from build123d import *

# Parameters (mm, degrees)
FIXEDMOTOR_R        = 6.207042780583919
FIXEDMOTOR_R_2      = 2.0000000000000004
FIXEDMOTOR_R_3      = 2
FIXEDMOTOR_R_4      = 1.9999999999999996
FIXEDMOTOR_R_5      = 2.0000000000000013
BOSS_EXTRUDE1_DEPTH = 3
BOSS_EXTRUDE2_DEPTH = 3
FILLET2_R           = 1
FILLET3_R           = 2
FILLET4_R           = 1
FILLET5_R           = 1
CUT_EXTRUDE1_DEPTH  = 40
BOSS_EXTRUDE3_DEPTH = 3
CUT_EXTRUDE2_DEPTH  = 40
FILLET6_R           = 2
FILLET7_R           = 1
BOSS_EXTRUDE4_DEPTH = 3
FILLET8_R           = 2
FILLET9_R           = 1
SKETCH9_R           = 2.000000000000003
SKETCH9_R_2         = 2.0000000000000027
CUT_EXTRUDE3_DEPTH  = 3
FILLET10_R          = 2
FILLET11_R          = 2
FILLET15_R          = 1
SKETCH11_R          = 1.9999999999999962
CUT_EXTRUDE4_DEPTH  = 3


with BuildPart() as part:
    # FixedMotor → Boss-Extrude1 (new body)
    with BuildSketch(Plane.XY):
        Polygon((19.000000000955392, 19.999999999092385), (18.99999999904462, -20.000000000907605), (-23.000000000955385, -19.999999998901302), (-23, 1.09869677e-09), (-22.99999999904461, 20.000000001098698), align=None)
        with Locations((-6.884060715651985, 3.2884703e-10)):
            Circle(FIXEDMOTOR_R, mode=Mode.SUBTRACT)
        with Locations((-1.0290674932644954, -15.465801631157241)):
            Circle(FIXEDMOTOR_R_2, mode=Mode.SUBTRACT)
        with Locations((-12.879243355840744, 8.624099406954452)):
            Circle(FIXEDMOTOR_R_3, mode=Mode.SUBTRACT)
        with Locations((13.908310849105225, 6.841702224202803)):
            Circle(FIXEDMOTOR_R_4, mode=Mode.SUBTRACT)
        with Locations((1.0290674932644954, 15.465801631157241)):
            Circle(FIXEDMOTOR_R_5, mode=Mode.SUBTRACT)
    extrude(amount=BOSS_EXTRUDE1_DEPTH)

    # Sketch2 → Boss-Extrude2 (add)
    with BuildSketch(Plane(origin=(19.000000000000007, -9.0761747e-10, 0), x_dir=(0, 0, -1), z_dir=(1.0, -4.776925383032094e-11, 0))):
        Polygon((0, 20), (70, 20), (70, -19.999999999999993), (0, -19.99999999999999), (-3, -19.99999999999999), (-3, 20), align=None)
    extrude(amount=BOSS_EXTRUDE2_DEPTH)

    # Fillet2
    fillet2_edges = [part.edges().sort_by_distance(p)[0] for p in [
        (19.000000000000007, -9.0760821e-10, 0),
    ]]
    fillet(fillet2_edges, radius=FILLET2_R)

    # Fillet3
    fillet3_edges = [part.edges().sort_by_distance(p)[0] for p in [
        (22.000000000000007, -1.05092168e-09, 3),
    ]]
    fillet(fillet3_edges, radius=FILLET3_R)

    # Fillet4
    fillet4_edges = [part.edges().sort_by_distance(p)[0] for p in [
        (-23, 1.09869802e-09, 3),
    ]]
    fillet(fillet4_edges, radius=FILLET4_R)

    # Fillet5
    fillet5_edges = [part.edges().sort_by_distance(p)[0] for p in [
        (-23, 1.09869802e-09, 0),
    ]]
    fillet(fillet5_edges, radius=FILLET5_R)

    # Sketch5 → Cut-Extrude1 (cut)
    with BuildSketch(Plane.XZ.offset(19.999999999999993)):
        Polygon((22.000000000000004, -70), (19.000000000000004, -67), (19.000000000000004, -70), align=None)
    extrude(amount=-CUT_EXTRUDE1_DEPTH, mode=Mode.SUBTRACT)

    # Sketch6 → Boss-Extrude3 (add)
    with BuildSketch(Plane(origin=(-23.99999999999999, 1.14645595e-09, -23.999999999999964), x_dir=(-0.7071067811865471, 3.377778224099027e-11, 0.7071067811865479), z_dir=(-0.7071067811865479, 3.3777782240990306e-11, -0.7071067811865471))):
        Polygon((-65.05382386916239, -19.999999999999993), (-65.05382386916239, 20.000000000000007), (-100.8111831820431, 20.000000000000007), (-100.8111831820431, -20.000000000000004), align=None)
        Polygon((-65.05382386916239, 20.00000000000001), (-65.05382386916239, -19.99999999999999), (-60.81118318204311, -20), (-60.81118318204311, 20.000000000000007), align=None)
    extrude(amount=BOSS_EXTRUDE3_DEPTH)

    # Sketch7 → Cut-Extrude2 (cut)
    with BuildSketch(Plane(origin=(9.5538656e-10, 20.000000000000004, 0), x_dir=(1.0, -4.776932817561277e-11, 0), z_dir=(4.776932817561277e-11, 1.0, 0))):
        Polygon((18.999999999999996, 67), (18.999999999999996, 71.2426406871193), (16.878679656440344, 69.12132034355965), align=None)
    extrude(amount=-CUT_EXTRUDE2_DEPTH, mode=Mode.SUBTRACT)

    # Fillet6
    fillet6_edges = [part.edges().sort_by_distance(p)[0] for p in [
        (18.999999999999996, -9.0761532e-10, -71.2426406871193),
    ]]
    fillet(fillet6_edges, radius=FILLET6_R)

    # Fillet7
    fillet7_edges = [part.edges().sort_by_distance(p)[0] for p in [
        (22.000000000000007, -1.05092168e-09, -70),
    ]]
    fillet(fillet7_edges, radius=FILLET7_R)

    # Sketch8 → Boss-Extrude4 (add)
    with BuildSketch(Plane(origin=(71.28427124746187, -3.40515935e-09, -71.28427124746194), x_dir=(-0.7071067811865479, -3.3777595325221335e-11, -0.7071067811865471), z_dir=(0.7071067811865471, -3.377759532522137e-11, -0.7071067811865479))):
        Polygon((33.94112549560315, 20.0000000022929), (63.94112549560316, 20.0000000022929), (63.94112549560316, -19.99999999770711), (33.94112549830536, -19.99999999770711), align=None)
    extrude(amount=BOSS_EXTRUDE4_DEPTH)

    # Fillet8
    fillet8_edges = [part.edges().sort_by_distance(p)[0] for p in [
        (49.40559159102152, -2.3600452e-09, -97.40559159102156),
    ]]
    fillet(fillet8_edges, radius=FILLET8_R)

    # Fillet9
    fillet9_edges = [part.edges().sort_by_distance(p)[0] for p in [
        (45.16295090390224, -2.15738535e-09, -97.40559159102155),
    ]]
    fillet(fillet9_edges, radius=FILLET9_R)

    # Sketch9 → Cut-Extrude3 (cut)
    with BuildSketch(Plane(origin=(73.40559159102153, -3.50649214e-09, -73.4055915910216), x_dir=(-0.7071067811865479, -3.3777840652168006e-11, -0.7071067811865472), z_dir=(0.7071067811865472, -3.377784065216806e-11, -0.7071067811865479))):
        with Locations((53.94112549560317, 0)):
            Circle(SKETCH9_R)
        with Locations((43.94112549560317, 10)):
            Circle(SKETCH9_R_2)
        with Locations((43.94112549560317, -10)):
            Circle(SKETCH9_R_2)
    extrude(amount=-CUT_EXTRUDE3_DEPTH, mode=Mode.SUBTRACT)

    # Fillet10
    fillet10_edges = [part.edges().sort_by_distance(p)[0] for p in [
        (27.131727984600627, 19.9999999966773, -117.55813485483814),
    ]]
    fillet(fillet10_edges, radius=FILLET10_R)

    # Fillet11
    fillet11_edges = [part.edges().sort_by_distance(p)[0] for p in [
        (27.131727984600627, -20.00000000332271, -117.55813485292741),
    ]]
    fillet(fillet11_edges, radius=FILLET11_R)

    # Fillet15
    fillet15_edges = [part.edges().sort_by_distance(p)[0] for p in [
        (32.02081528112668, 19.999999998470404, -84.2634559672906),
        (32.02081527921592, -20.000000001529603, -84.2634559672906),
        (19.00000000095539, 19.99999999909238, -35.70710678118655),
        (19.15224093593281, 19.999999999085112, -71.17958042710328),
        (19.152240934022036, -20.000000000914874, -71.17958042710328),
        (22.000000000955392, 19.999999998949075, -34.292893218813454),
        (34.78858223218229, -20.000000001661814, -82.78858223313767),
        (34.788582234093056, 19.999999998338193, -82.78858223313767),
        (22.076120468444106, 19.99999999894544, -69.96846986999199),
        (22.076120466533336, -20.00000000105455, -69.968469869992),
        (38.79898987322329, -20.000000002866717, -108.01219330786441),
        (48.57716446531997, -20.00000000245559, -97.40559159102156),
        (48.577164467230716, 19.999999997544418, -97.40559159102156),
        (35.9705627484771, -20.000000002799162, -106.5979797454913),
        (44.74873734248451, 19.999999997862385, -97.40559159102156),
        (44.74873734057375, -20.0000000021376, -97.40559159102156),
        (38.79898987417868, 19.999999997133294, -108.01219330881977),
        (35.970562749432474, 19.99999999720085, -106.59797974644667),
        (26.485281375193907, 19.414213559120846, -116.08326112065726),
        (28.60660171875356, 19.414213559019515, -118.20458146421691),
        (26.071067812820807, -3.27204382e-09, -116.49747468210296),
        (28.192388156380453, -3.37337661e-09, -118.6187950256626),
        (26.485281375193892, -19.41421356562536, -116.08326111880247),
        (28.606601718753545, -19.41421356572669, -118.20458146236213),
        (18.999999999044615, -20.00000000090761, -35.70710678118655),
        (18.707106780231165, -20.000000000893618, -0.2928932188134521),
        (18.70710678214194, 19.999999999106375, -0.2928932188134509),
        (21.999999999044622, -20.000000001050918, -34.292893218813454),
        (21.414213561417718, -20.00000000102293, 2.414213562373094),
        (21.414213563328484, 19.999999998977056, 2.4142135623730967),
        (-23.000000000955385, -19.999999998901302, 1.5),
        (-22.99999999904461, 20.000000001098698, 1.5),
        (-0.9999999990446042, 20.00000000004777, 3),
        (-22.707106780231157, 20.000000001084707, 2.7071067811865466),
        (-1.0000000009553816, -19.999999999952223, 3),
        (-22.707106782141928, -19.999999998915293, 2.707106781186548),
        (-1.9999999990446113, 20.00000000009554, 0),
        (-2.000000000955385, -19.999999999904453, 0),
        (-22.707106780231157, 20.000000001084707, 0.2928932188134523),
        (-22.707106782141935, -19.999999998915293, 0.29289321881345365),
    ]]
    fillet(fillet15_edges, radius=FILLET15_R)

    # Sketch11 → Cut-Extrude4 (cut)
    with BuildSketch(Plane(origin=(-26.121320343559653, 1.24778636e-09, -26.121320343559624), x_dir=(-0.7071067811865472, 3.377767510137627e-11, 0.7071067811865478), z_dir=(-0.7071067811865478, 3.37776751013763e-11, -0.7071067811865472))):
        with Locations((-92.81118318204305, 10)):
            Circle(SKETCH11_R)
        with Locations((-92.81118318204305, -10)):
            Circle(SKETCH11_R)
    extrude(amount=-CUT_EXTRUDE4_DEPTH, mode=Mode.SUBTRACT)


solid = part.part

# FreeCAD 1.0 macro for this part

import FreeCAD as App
import Part
import Sketcher

V = App.Vector
Q = App.Units.Quantity


def edges_at(feature, points):
    """Names of the edges that pass closest to the given points."""
    edges = feature.Shape.Edges
    near = lambda p: min(range(len(edges)), key=lambda i: edges[i].distToShape(Part.Vertex(*p))[0])
    return sorted({f"Edge{near(p) + 1}" for p in points})

doc = App.newDocument("Part")
body = doc.addObject("PartDesign::Body", "Body")

sketch1 = body.newObject("Sketcher::SketchObject", "Sketch")
sketch1.AttachmentSupport = (doc.getObject("XY_Plane"), [""])
sketch1.MapMode = "FlatFace"
sketch1.addGeometry([
    Part.LineSegment(V(19, -20, 0), V(19, 20, 0)),
    Part.LineSegment(V(19, 20, 0), V(-23, 20, 0)),
    Part.LineSegment(V(-23, 20, 0), V(-23, -20, 0)),
    Part.LineSegment(V(-23, -20, 0), V(19, -20, 0)),
    Part.Circle(V(-1, -15.5, 0), V(0, 0, 1), 2),
    Part.Circle(V(13.9, 6.8, 0), V(0, 0, 1), 2),
    Part.Circle(V(1, 15.5, 0), V(0, 0, 1), 2),
    Part.Circle(V(-6.9, 0, 0), V(0, 0, 1), 6.2),
    Part.Circle(V(-12.9, 8.6, 0), V(0, 0, 1), 2),
], False)
sketch1.addConstraint([
    Sketcher.Constraint("Coincident", 0, 2, 1, 1),
    Sketcher.Constraint("Coincident", 1, 2, 2, 1),
    Sketcher.Constraint("Coincident", 2, 2, 3, 1),
    Sketcher.Constraint("Coincident", 3, 2, 0, 1),
    Sketcher.Constraint("Vertical", 0),
    Sketcher.Constraint("Horizontal", 1),
    Sketcher.Constraint("Vertical", 2),
    Sketcher.Constraint("Horizontal", 3),
    Sketcher.Constraint("Equal", 4, 5),
    Sketcher.Constraint("Equal", 5, 6),
    Sketcher.Constraint("Equal", 6, 8),
    Sketcher.Constraint("Symmetric", 4, 3, 6, 3, -1, 1),
    Sketcher.Constraint("PointOnObject", 7, 3, -1),
    Sketcher.Constraint("Diameter", 4, Q("4 mm")),
    Sketcher.Constraint("DistanceX", 1, 2, 1, 1, Q("42 mm")),
    Sketcher.Constraint("DistanceY", 0, 1, 0, 2, Q("40 mm")),
    Sketcher.Constraint("DistanceX", -1, 1, 0, 2, Q("19 mm")),
    Sketcher.Constraint("DistanceY", -1, 1, 0, 2, Q("20 mm")),
    Sketcher.Constraint("Diameter", 7, Q("12.414086 mm")),
    Sketcher.Constraint("DistanceY", 4, 3, -1, 1, Q("15.465802 mm")),
    Sketcher.Constraint("DistanceY", -1, 1, 8, 3, Q("8.624099 mm")),
    Sketcher.Constraint("DistanceY", 5, 3, 6, 3, Q("8.624099 mm")),
    Sketcher.Constraint("DistanceX", -1, 1, 5, 3, Q("13.908311 mm")),
    Sketcher.Constraint("DistanceX", 7, 3, -1, 1, Q("6.884061 mm")),
    Sketcher.Constraint("DistanceX", 4, 3, 5, 3, Q("14.937378 mm")),
    Sketcher.Constraint("DistanceX", 8, 3, 6, 3, Q("13.908311 mm")),
])
pad1 = body.newObject("PartDesign::Pad", "Pad")
pad1.Profile = sketch1
pad1.Length = 3

sketch2 = body.newObject("Sketcher::SketchObject", "Sketch001")
sketch2.AttachmentSupport = (doc.getObject("YZ_Plane"), [""])
sketch2.MapMode = "FlatFace"
sketch2.AttachmentOffset = App.Placement(V(0, 0, 19), App.Rotation())
sketch2.addGeometry([
    Part.LineSegment(V(20, -70, 0), V(20, 3, 0)),
    Part.LineSegment(V(20, 3, 0), V(-20, 3, 0)),
    Part.LineSegment(V(-20, 3, 0), V(-20, -70, 0)),
    Part.LineSegment(V(-20, -70, 0), V(20, -70, 0)),
], False)
sketch2.addConstraint([
    Sketcher.Constraint("Coincident", 0, 2, 1, 1),
    Sketcher.Constraint("Coincident", 1, 2, 2, 1),
    Sketcher.Constraint("Coincident", 2, 2, 3, 1),
    Sketcher.Constraint("Coincident", 3, 2, 0, 1),
    Sketcher.Constraint("Vertical", 0),
    Sketcher.Constraint("Horizontal", 1),
    Sketcher.Constraint("Vertical", 2),
    Sketcher.Constraint("Horizontal", 3),
    Sketcher.Constraint("DistanceX", 1, 2, 1, 1, Q("40 mm")),
    Sketcher.Constraint("DistanceY", 0, 1, 0, 2, Q("73 mm")),
    Sketcher.Constraint("DistanceX", -1, 1, 0, 2, Q("20 mm")),
    Sketcher.Constraint("DistanceY", -1, 1, 0, 2, Q("3 mm")),
])
pad2 = body.newObject("PartDesign::Pad", "Pad001")
pad2.Profile = sketch2
pad2.Length = 3
doc.recompute()

fillet = body.newObject("PartDesign::Fillet", "Fillet")
fillet.Base = (pad2, edges_at(pad2, [(19, 0, 0)]))
fillet.Radius = 1
doc.recompute()

fillet2 = body.newObject("PartDesign::Fillet", "Fillet001")
fillet2.Base = (fillet, edges_at(fillet, [(22, 0, 3)]))
fillet2.Radius = 2
doc.recompute()

fillet3 = body.newObject("PartDesign::Fillet", "Fillet002")
fillet3.Base = (fillet2, edges_at(fillet2, [(-23, 0, 3)]))
fillet3.Radius = 1
doc.recompute()

fillet4 = body.newObject("PartDesign::Fillet", "Fillet003")
fillet4.Base = (fillet3, edges_at(fillet3, [(-23, 0, 0)]))
fillet4.Radius = 1

sketch3 = body.newObject("Sketcher::SketchObject", "Sketch002")
sketch3.AttachmentSupport = (doc.getObject("XZ_Plane"), [""])
sketch3.MapMode = "FlatFace"
sketch3.AttachmentOffset = App.Placement(V(0, 0, 20), App.Rotation())
sketch3.addGeometry([
    Part.LineSegment(V(22, -70, 0), V(19, -67, 0)),
    Part.LineSegment(V(19, -67, 0), V(19, -70, 0)),
    Part.LineSegment(V(19, -70, 0), V(22, -70, 0)),
], False)
sketch3.addConstraint([
    Sketcher.Constraint("Coincident", 0, 2, 1, 1),
    Sketcher.Constraint("Coincident", 1, 2, 2, 1),
    Sketcher.Constraint("Coincident", 2, 2, 0, 1),
    Sketcher.Constraint("Vertical", 1),
    Sketcher.Constraint("Horizontal", 2),
    Sketcher.Constraint("Equal", 2, 1),
    Sketcher.Constraint("DistanceX", 2, 1, 2, 2, Q("3 mm")),
    Sketcher.Constraint("DistanceX", -1, 1, 0, 2, Q("19 mm")),
    Sketcher.Constraint("DistanceY", 0, 2, -1, 1, Q("67 mm")),
])
pocket1 = body.newObject("PartDesign::Pocket", "Pocket")
pocket1.Profile = sketch3
pocket1.Length = 40

sketch4 = body.newObject("Sketcher::SketchObject", "Sketch003")
sketch4.Placement = App.Placement(V(-24, 0, -24), App.Rotation(V(-0.707106781, 0, 0.707106781), V(0, 0.999999999, 0), V(-0.707106781, 0, -0.707106781), "ZXY"))
sketch4.addGeometry([
    Part.LineSegment(V(-101, 20, 0), V(-101, -20, 0)),
    Part.LineSegment(V(-101, -20, 0), V(-61, -20, 0)),
    Part.LineSegment(V(-61, -20, 0), V(-61, 20, 0)),
    Part.LineSegment(V(-61, 20, 0), V(-101, 20, 0)),
], False)
sketch4.addConstraint([
    Sketcher.Constraint("Coincident", 0, 2, 1, 1),
    Sketcher.Constraint("Coincident", 1, 2, 2, 1),
    Sketcher.Constraint("Coincident", 2, 2, 3, 1),
    Sketcher.Constraint("Coincident", 3, 2, 0, 1),
    Sketcher.Constraint("Vertical", 0),
    Sketcher.Constraint("Horizontal", 1),
    Sketcher.Constraint("Vertical", 2),
    Sketcher.Constraint("Horizontal", 3),
    Sketcher.Constraint("Equal", 3, 0),
    Sketcher.Constraint("DistanceX", 1, 1, 1, 2, Q("40 mm")),
    Sketcher.Constraint("DistanceY", 0, 2, -1, 1, Q("20 mm")),
    Sketcher.Constraint("DistanceX", 0, 2, -1, 1, Q("100.811183 mm")),
])
pad3 = body.newObject("PartDesign::Pad", "Pad002")
pad3.Profile = sketch4
pad3.Length = 3

sketch5 = body.newObject("Sketcher::SketchObject", "Sketch004")
sketch5.AttachmentSupport = (doc.getObject("XZ_Plane"), [""])
sketch5.MapMode = "FlatFace"
sketch5.AttachmentOffset = App.Placement(V(0, 0, -20), App.Rotation())
sketch5.addGeometry([
    Part.LineSegment(V(19, -67, 0), V(19, -71.2, 0)),
    Part.LineSegment(V(19, -71.2, 0), V(16.9, -69.1, 0)),
    Part.LineSegment(V(16.9, -69.1, 0), V(19, -67, 0)),
], False)
sketch5.addConstraint([
    Sketcher.Constraint("Coincident", 0, 2, 1, 1),
    Sketcher.Constraint("Coincident", 1, 2, 2, 1),
    Sketcher.Constraint("Coincident", 2, 2, 0, 1),
    Sketcher.Constraint("Vertical", 0),
    Sketcher.Constraint("Perpendicular", 1, 2),
    Sketcher.Constraint("Equal", 1, 2),
    Sketcher.Constraint("Distance", 1, Q("3 mm")),
    Sketcher.Constraint("DistanceX", -1, 1, 0, 2, Q("19 mm")),
    Sketcher.Constraint("DistanceY", 2, 2, -1, 1, Q("67 mm")),
])
pocket2 = body.newObject("PartDesign::Pocket", "Pocket001")
pocket2.Profile = sketch5
pocket2.Length = 40
pocket2.Reversed = True
doc.recompute()

fillet5 = body.newObject("PartDesign::Fillet", "Fillet004")
fillet5.Base = (pocket2, edges_at(pocket2, [(19, 0, -71.243)]))
fillet5.Radius = 2
doc.recompute()

fillet6 = body.newObject("PartDesign::Fillet", "Fillet005")
fillet6.Base = (fillet5, edges_at(fillet5, [(22, 0, -70)]))
fillet6.Radius = 1

sketch6 = body.newObject("Sketcher::SketchObject", "Sketch005")
sketch6.Placement = App.Placement(V(71.284271, 0, -71.284271), App.Rotation(V(-0.707106781, 0, -0.707106781), V(0, 0.999999999, 0), V(0.707106781, 0, -0.707106781), "ZXY"))
sketch6.addGeometry([
    Part.LineSegment(V(64, 20, 0), V(34, 20, 0)),
    Part.LineSegment(V(34, 20, 0), V(34, -20, 0)),
    Part.LineSegment(V(34, -20, 0), V(64, -20, 0)),
    Part.LineSegment(V(64, -20, 0), V(64, 20, 0)),
], False)
sketch6.addConstraint([
    Sketcher.Constraint("Coincident", 0, 2, 1, 1),
    Sketcher.Constraint("Coincident", 1, 2, 2, 1),
    Sketcher.Constraint("Coincident", 2, 2, 3, 1),
    Sketcher.Constraint("Coincident", 3, 2, 0, 1),
    Sketcher.Constraint("Horizontal", 0),
    Sketcher.Constraint("Vertical", 1),
    Sketcher.Constraint("Horizontal", 2),
    Sketcher.Constraint("Vertical", 3),
    Sketcher.Constraint("DistanceX", 0, 2, 0, 1, Q("30 mm")),
    Sketcher.Constraint("DistanceY", 1, 2, 1, 1, Q("40 mm")),
    Sketcher.Constraint("DistanceY", -1, 1, 0, 2, Q("20 mm")),
    Sketcher.Constraint("DistanceX", -1, 1, 0, 2, Q("33.941125 mm")),
])
pad4 = body.newObject("PartDesign::Pad", "Pad003")
pad4.Profile = sketch6
pad4.Length = 3
doc.recompute()

fillet7 = body.newObject("PartDesign::Fillet", "Fillet006")
fillet7.Base = (pad4, edges_at(pad4, [(49.406, 0, -97.406)]))
fillet7.Radius = 2
doc.recompute()

fillet8 = body.newObject("PartDesign::Fillet", "Fillet007")
fillet8.Base = (fillet7, edges_at(fillet7, [(45.163, 0, -97.406)]))
fillet8.Radius = 1

sketch7 = body.newObject("Sketcher::SketchObject", "Sketch006")
sketch7.Placement = App.Placement(V(73.405592, 0, -73.405592), App.Rotation(V(-0.707106781, 0, -0.707106781), V(0, 0.999999999, 0), V(0.707106781, 0, -0.707106781), "ZXY"))
sketch7.addGeometry([
    Part.Circle(V(53.9, 0, 0), V(0, 0, 1), 2),
    Part.Circle(V(43.9, 10, 0), V(0, 0, 1), 2),
    Part.Circle(V(43.9, -10, 0), V(0, 0, 1), 2),
], False)
sketch7.addConstraint([
    Sketcher.Constraint("Equal", 0, 1),
    Sketcher.Constraint("Equal", 1, 2),
    Sketcher.Constraint("Symmetric", 1, 3, 2, 3, -1),
    Sketcher.Constraint("PointOnObject", 0, 3, -1),
    Sketcher.Constraint("Diameter", 0, Q("4 mm")),
    Sketcher.Constraint("DistanceY", -1, 1, 1, 3, Q("10 mm")),
    Sketcher.Constraint("DistanceX", 1, 3, 0, 3, Q("10 mm")),
    Sketcher.Constraint("DistanceX", -1, 1, 0, 3, Q("53.941125 mm")),
])
pocket3 = body.newObject("PartDesign::Pocket", "Pocket002")
pocket3.Profile = sketch7
pocket3.Length = 3
doc.recompute()

fillet9 = body.newObject("PartDesign::Fillet", "Fillet008")
fillet9.Base = (pocket3, edges_at(pocket3, [(27.132, 20, -117.558)]))
fillet9.Radius = 2
doc.recompute()

fillet10 = body.newObject("PartDesign::Fillet", "Fillet009")
fillet10.Base = (fillet9, edges_at(fillet9, [(27.132, -20, -117.558)]))
fillet10.Radius = 2
doc.recompute()

fillet11 = body.newObject("PartDesign::Fillet", "Fillet010")
fillet11.Base = (fillet10, edges_at(fillet10, [
    (32.021, 20, -84.263),
    (32.021, -20, -84.263),
    (19, 20, -35.707),
    (19.152, 20, -71.18),
    (19.152, -20, -71.18),
    (22, 20, -34.293),
    (34.789, -20, -82.789),
    (34.789, 20, -82.789),
    (22.076, 20, -69.968),
    (22.076, -20, -69.968),
    (38.799, -20, -108.012),
    (48.577, -20, -97.406),
    (48.577, 20, -97.406),
    (35.971, -20, -106.598),
    (44.749, 20, -97.406),
    (44.749, -20, -97.406),
    (38.799, 20, -108.012),
    (35.971, 20, -106.598),
    (26.485, 19.414, -116.083),
    (28.607, 19.414, -118.205),
    (26.071, 0, -116.497),
    (28.192, 0, -118.619),
    (26.485, -19.414, -116.083),
    (28.607, -19.414, -118.205),
    (19, -20, -35.707),
    (18.707, -20, -0.293),
    (18.707, 20, -0.293),
    (22, -20, -34.293),
    (21.414, -20, 2.414),
    (21.414, 20, 2.414),
    (-23, -20, 1.5),
    (-23, 20, 1.5),
    (-1, 20, 3),
    (-22.707, 20, 2.707),
    (-1, -20, 3),
    (-22.707, -20, 2.707),
    (-2, 20, 0),
    (-2, -20, 0),
    (-22.707, 20, 0.293),
    (-22.707, -20, 0.293),
]))
fillet11.Radius = 1

sketch8 = body.newObject("Sketcher::SketchObject", "Sketch007")
sketch8.Placement = App.Placement(V(-26.12132, 0, -26.12132), App.Rotation(V(-0.707106781, 0, 0.707106781), V(0, 0.999999999, 0), V(-0.707106781, 0, -0.707106781), "ZXY"))
sketch8.addGeometry([
    Part.Circle(V(-92.8, 10, 0), V(0, 0, 1), 2),
    Part.Circle(V(-92.8, -10, 0), V(0, 0, 1), 2),
], False)
sketch8.addConstraint([
    Sketcher.Constraint("Equal", 0, 1),
    Sketcher.Constraint("Symmetric", 0, 3, 1, 3, -1),
    Sketcher.Constraint("Diameter", 0, Q("4 mm")),
    Sketcher.Constraint("DistanceY", -1, 1, 0, 3, Q("10 mm")),
    Sketcher.Constraint("DistanceX", 0, 3, -1, 1, Q("92.811183 mm")),
])
pocket4 = body.newObject("PartDesign::Pocket", "Pocket003")
pocket4.Profile = sketch8
pocket4.Length = 3

doc.recompute()
